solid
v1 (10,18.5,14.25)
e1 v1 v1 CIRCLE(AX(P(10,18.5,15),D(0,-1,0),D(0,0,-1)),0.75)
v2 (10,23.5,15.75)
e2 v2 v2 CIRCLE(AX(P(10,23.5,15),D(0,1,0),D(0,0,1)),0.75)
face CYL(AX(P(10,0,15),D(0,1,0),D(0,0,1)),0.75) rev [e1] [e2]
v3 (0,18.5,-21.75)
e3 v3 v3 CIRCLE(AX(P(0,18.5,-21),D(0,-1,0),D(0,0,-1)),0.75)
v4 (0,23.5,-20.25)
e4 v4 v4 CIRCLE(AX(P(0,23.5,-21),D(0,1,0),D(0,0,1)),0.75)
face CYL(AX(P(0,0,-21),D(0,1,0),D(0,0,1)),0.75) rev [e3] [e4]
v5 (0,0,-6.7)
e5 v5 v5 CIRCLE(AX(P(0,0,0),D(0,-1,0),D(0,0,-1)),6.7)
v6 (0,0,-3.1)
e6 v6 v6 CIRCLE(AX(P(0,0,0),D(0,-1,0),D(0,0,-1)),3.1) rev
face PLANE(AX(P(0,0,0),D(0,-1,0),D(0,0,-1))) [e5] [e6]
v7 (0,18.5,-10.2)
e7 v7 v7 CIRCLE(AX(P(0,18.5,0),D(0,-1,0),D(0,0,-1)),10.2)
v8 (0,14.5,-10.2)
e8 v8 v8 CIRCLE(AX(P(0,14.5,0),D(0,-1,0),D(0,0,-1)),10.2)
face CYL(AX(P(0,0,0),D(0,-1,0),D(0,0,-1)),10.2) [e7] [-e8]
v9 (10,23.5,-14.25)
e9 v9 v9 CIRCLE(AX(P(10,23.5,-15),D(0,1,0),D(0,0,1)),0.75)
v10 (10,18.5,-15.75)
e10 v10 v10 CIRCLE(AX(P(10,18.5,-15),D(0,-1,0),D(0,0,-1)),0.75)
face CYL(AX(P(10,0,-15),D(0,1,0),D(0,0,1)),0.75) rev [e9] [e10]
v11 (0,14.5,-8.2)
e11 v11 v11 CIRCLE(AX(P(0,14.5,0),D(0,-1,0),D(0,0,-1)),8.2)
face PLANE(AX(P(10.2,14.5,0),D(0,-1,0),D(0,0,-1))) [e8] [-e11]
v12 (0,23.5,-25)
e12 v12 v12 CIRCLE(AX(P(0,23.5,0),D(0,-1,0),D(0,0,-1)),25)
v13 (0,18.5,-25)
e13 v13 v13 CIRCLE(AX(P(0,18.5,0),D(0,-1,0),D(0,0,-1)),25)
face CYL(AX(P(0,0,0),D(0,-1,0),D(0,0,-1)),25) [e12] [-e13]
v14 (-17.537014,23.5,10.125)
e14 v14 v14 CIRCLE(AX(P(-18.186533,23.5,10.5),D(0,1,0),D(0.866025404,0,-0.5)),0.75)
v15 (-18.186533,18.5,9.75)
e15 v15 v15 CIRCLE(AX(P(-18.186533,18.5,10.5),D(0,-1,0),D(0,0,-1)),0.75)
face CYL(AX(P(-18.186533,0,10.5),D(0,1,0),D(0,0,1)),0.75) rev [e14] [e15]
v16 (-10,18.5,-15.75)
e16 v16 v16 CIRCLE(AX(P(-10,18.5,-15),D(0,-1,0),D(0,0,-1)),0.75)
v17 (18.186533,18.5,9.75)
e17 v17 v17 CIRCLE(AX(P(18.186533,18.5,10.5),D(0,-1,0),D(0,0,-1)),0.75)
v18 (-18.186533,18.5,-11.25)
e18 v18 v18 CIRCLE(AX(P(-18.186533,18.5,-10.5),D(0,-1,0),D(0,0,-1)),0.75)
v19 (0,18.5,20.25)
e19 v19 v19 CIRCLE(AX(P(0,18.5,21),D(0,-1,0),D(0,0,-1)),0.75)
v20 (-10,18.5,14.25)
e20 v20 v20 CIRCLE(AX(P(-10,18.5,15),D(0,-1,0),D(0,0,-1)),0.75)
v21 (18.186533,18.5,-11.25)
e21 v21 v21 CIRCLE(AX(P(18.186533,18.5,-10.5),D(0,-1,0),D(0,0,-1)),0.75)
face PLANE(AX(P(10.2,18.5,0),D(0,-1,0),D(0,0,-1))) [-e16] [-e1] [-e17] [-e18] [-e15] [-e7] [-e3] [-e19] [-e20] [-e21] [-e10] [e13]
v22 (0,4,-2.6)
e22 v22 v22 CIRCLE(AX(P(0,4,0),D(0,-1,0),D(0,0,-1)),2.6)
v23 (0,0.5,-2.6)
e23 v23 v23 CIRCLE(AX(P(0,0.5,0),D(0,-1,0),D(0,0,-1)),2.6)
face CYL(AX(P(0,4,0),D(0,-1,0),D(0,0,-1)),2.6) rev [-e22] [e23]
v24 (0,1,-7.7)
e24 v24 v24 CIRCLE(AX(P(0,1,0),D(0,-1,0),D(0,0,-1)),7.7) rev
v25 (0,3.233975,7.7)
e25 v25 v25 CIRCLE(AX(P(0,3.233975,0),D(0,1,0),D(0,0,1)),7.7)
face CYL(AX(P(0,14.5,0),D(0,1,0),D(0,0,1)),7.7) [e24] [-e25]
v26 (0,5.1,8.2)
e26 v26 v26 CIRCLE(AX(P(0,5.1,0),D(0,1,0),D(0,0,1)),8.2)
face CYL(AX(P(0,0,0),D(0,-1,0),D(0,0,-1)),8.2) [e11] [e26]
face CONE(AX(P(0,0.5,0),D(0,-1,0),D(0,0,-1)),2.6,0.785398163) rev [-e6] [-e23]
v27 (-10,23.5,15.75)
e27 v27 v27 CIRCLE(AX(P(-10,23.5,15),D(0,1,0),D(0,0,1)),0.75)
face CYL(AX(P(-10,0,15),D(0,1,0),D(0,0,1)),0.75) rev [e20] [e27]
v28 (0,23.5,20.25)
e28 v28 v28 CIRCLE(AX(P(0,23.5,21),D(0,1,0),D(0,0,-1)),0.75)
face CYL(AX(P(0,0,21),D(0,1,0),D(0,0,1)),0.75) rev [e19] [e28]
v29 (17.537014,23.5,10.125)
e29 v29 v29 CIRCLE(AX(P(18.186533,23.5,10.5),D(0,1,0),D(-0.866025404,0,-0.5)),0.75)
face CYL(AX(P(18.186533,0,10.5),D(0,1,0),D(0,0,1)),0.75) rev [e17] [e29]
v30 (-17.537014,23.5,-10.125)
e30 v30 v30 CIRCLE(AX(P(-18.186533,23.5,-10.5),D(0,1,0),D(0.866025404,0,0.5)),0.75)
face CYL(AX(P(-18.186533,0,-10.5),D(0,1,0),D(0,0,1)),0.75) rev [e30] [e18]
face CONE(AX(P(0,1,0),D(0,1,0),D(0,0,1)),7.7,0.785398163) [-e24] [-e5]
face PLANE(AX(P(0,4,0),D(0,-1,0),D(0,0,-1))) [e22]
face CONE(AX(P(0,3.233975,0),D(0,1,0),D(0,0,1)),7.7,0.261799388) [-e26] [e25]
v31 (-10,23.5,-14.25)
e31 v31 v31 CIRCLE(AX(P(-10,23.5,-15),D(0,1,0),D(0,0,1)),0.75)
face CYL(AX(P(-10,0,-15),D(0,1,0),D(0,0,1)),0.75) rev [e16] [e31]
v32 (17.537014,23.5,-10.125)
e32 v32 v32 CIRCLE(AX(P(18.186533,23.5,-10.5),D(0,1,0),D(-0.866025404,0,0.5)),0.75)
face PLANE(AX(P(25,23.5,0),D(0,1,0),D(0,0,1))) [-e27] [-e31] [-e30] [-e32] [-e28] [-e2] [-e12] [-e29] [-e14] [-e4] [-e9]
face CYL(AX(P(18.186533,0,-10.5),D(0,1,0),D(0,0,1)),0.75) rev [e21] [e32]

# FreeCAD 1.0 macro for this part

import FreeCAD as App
import Part
import Sketcher
from FreeCAD import Vector
Q = App.Units.Quantity


def edges_at(feature, points):
    """Names of the edges that pass closest to the given points."""
    edges = feature.Shape.Edges
    near = lambda p: min(range(len(edges)), key=lambda i: edges[i].distToShape(Part.Vertex(*p))[0])
    return sorted({f"Edge{near(p) + 1}" for p in points})

doc = App.newDocument("Part")
body = doc.addObject("PartDesign::Body", "Body")

# Sketch on XY plane
sketch1 = body.newObject("Sketcher::SketchObject", "Sketch")
sketch1.AttachmentSupport = (doc.getObject("XY_Plane"), [""])
sketch1.MapMode = "FlatFace"
sketch1.addGeometry(Part.LineSegment(Vector(10.2, 14.5, 0), Vector(10.2, 18.5, 0)), False)
sketch1.addGeometry(Part.LineSegment(Vector(10.2, 18.5, 0), Vector(25, 18.5, 0)), False)
sketch1.addGeometry(Part.LineSegment(Vector(25, 18.5, 0), Vector(25, 23.5, 0)), False)
sketch1.addGeometry(Part.LineSegment(Vector(25, 23.5, 0), Vector(0, 23.5, 0)), False)
sketch1.addGeometry(Part.LineSegment(Vector(0, 23.5, 0), Vector(0, 0, 0)), False)
sketch1.addGeometry(Part.LineSegment(Vector(0, 0, 0), Vector(8.2, 0, 0)), False)
sketch1.addGeometry(Part.LineSegment(Vector(8.2, 0, 0), Vector(8.2, 14.5, 0)), False)
sketch1.addGeometry(Part.LineSegment(Vector(8.2, 14.5, 0), Vector(10.2, 14.5, 0)), False)
sketch1.addConstraint(Sketcher.Constraint("Coincident", 0, 2, 1, 1))
sketch1.addConstraint(Sketcher.Constraint("Coincident", 1, 2, 2, 1))
sketch1.addConstraint(Sketcher.Constraint("Coincident", 2, 2, 3, 1))
sketch1.addConstraint(Sketcher.Constraint("Coincident", 3, 2, 4, 1))
sketch1.addConstraint(Sketcher.Constraint("Coincident", 4, 2, 5, 1))
sketch1.addConstraint(Sketcher.Constraint("Coincident", 5, 2, 6, 1))
sketch1.addConstraint(Sketcher.Constraint("Coincident", 6, 2, 7, 1))
sketch1.addConstraint(Sketcher.Constraint("Coincident", 7, 2, 0, 1))
sketch1.addConstraint(Sketcher.Constraint("Vertical", 0))
sketch1.addConstraint(Sketcher.Constraint("Horizontal", 1))
sketch1.addConstraint(Sketcher.Constraint("Vertical", 2))
sketch1.addConstraint(Sketcher.Constraint("Horizontal", 3))
sketch1.addConstraint(Sketcher.Constraint("Vertical", 4))
sketch1.addConstraint(Sketcher.Constraint("Horizontal", 5))
sketch1.addConstraint(Sketcher.Constraint("Vertical", 6))
sketch1.addConstraint(Sketcher.Constraint("Horizontal", 7))
sketch1.addConstraint(Sketcher.Constraint("Coincident", 4, 2, -1, 1))
sketch1.addConstraint(Sketcher.Constraint("DistanceX", 3, 2, 3, 1, Q("25 mm")))
sketch1.addConstraint(Sketcher.Constraint("DistanceX", 7, 1, 7, 2, Q("2 mm")))
sketch1.addConstraint(Sketcher.Constraint("DistanceY", 0, 1, 0, 2, Q("4 mm")))
sketch1.addConstraint(Sketcher.Constraint("DistanceY", 2, 1, 2, 2, Q("5 mm")))
sketch1.addConstraint(Sketcher.Constraint("DistanceX", 1, 1, 1, 2, Q("14.8 mm")))
sketch1.addConstraint(Sketcher.Constraint("DistanceY", 4, 2, 4, 1, Q("23.5 mm")))
revolution = body.newObject("PartDesign::Revolution", "Revolution")
revolution.Profile = sketch1
revolution.ReferenceAxis = (sketch1, ["V_Axis"])
revolution.Angle = 360

# Sketch on XZ plane
sketch2 = body.newObject("Sketcher::SketchObject", "Sketch001")
sketch2.AttachmentSupport = (doc.getObject("XZ_Plane"), [""])
sketch2.MapMode = "FlatFace"
sketch2.AttachmentOffset = App.Placement(Vector(0, 0, -23.5), App.Rotation())
sketch2.addGeometry(Part.Circle(Vector(0, -21, 0), Vector(0, 0, 1), 0.8), False)
sketch2.addConstraint(Sketcher.Constraint("PointOnObject", 0, 3, -2))
sketch2.addConstraint(Sketcher.Constraint("Diameter", 0, Q("1.5 mm")))
sketch2.addConstraint(Sketcher.Constraint("DistanceY", 0, 3, -1, 1, Q("21 mm")))
pocket1 = body.newObject("PartDesign::Pocket", "Pocket")
pocket1.Profile = sketch2
pocket1.Type = "ThroughAll"
pocket1.Reversed = True
doc.recompute()

polarpattern = body.newObject("PartDesign::PolarPattern", "PolarPattern")
polarpattern.Originals = [pocket1]
polarpattern.Axis = (doc.getObject("Y_Axis"), [""])
polarpattern.Angle = 360
polarpattern.Occurrences = 6
body.Tip = polarpattern

# Sketch on XZ plane
sketch3 = body.newObject("Sketcher::SketchObject", "Sketch002")
sketch3.AttachmentSupport = (doc.getObject("XZ_Plane"), [""])
sketch3.MapMode = "FlatFace"
sketch3.AttachmentOffset = App.Placement(Vector(0, 0, -23.5), App.Rotation())
sketch3.addGeometry(Part.Circle(Vector(-10, -15, 0), Vector(0, 0, 1), 0.8), False)
sketch3.addGeometry(Part.Circle(Vector(10, -15, 0), Vector(0, 0, 1), 0.8), False)
sketch3.addGeometry(Part.Circle(Vector(-10, 15, 0), Vector(0, 0, 1), 0.8), False)
sketch3.addGeometry(Part.Circle(Vector(10, 15, 0), Vector(0, 0, 1), 0.8), False)
sketch3.addConstraint(Sketcher.Constraint("Equal", 0, 1))
sketch3.addConstraint(Sketcher.Constraint("Equal", 1, 2))
sketch3.addConstraint(Sketcher.Constraint("Equal", 2, 3))
sketch3.addConstraint(Sketcher.Constraint("Symmetric", 1, 3, 2, 3, -1, 1))
sketch3.addConstraint(Sketcher.Constraint("Symmetric", 0, 3, 3, 3, -1, 1))
sketch3.addConstraint(Sketcher.Constraint("Symmetric", 0, 3, 1, 3, -2))
sketch3.addConstraint(Sketcher.Constraint("Diameter", 0, Q("1.5 mm")))
sketch3.addConstraint(Sketcher.Constraint("DistanceX", 0, 3, -1, 1, Q("10 mm")))
sketch3.addConstraint(Sketcher.Constraint("DistanceY", 0, 3, -1, 1, Q("15 mm")))
pocket2 = body.newObject("PartDesign::Pocket", "Pocket001")
pocket2.Profile = sketch3
pocket2.Type = "ThroughAll"
pocket2.Reversed = True

# Sketch on XZ plane
sketch4 = body.newObject("Sketcher::SketchObject", "Sketch003")
sketch4.AttachmentSupport = (doc.getObject("XZ_Plane"), [""])
sketch4.MapMode = "FlatFace"
sketch4.addGeometry(Part.Circle(Vector(0, 0, 0), Vector(0, 0, 1), 2.6), False)
sketch4.addConstraint(Sketcher.Constraint("Coincident", 0, 3, -1, 1))
sketch4.addConstraint(Sketcher.Constraint("Diameter", 0, Q("5.2 mm")))
pocket3 = body.newObject("PartDesign::Pocket", "Pocket002")
pocket3.Profile = sketch4
pocket3.Length = 4

# Sketch on XY plane
sketch5 = body.newObject("Sketcher::SketchObject", "Sketch004")
sketch5.AttachmentSupport = (doc.getObject("XY_Plane"), [""])
sketch5.MapMode = "FlatFace"
sketch5.addGeometry(Part.LineSegment(Vector(-7.7, 3.23, 0), Vector(-8.2, 5.1, 0)), False)
sketch5.addGeometry(Part.LineSegment(Vector(-8.2, 5.1, 0), Vector(-8.2, 0, 0)), False)
sketch5.addGeometry(Part.LineSegment(Vector(-8.2, 0, 0), Vector(-7.7, 0, 0)), False)
sketch5.addGeometry(Part.LineSegment(Vector(-7.7, 0, 0), Vector(-7.7, 3.23, 0)), False)
sketch5.addConstraint(Sketcher.Constraint("Coincident", 0, 2, 1, 1))
sketch5.addConstraint(Sketcher.Constraint("Coincident", 1, 2, 2, 1))
sketch5.addConstraint(Sketcher.Constraint("Coincident", 2, 2, 3, 1))
sketch5.addConstraint(Sketcher.Constraint("Coincident", 3, 2, 0, 1))
sketch5.addConstraint(Sketcher.Constraint("Vertical", 1))
sketch5.addConstraint(Sketcher.Constraint("Horizontal", 2))
sketch5.addConstraint(Sketcher.Constraint("Vertical", 3))
sketch5.addConstraint(Sketcher.Constraint("PointOnObject", 1, 2, -1))
sketch5.addConstraint(Sketcher.Constraint("Angle", 0, Q("105 deg")))
sketch5.addConstraint(Sketcher.Constraint("DistanceX", 2, 1, 2, 2, Q("0.5 mm")))
sketch5.addConstraint(Sketcher.Constraint("DistanceY", 1, 2, 1, 1, Q("5.1 mm")))
sketch5.addConstraint(Sketcher.Constraint("DistanceX", 0, 2, -1, 1, Q("8.2 mm")))
groove = body.newObject("PartDesign::Groove", "Groove")
groove.Profile = sketch5
groove.ReferenceAxis = (sketch5, ["V_Axis"])
groove.Angle = 360
doc.recompute()

chamfer = body.newObject("PartDesign::Chamfer", "Chamfer")
chamfer.Base = (groove, edges_at(groove, [(0, 0, 2.6)]))
chamfer.Size = 0.5
doc.recompute()

chamfer2 = body.newObject("PartDesign::Chamfer", "Chamfer001")
chamfer2.Base = (chamfer, edges_at(chamfer, [(0, 0, -7.7)]))
chamfer2.Size = 1

doc.recompute()
